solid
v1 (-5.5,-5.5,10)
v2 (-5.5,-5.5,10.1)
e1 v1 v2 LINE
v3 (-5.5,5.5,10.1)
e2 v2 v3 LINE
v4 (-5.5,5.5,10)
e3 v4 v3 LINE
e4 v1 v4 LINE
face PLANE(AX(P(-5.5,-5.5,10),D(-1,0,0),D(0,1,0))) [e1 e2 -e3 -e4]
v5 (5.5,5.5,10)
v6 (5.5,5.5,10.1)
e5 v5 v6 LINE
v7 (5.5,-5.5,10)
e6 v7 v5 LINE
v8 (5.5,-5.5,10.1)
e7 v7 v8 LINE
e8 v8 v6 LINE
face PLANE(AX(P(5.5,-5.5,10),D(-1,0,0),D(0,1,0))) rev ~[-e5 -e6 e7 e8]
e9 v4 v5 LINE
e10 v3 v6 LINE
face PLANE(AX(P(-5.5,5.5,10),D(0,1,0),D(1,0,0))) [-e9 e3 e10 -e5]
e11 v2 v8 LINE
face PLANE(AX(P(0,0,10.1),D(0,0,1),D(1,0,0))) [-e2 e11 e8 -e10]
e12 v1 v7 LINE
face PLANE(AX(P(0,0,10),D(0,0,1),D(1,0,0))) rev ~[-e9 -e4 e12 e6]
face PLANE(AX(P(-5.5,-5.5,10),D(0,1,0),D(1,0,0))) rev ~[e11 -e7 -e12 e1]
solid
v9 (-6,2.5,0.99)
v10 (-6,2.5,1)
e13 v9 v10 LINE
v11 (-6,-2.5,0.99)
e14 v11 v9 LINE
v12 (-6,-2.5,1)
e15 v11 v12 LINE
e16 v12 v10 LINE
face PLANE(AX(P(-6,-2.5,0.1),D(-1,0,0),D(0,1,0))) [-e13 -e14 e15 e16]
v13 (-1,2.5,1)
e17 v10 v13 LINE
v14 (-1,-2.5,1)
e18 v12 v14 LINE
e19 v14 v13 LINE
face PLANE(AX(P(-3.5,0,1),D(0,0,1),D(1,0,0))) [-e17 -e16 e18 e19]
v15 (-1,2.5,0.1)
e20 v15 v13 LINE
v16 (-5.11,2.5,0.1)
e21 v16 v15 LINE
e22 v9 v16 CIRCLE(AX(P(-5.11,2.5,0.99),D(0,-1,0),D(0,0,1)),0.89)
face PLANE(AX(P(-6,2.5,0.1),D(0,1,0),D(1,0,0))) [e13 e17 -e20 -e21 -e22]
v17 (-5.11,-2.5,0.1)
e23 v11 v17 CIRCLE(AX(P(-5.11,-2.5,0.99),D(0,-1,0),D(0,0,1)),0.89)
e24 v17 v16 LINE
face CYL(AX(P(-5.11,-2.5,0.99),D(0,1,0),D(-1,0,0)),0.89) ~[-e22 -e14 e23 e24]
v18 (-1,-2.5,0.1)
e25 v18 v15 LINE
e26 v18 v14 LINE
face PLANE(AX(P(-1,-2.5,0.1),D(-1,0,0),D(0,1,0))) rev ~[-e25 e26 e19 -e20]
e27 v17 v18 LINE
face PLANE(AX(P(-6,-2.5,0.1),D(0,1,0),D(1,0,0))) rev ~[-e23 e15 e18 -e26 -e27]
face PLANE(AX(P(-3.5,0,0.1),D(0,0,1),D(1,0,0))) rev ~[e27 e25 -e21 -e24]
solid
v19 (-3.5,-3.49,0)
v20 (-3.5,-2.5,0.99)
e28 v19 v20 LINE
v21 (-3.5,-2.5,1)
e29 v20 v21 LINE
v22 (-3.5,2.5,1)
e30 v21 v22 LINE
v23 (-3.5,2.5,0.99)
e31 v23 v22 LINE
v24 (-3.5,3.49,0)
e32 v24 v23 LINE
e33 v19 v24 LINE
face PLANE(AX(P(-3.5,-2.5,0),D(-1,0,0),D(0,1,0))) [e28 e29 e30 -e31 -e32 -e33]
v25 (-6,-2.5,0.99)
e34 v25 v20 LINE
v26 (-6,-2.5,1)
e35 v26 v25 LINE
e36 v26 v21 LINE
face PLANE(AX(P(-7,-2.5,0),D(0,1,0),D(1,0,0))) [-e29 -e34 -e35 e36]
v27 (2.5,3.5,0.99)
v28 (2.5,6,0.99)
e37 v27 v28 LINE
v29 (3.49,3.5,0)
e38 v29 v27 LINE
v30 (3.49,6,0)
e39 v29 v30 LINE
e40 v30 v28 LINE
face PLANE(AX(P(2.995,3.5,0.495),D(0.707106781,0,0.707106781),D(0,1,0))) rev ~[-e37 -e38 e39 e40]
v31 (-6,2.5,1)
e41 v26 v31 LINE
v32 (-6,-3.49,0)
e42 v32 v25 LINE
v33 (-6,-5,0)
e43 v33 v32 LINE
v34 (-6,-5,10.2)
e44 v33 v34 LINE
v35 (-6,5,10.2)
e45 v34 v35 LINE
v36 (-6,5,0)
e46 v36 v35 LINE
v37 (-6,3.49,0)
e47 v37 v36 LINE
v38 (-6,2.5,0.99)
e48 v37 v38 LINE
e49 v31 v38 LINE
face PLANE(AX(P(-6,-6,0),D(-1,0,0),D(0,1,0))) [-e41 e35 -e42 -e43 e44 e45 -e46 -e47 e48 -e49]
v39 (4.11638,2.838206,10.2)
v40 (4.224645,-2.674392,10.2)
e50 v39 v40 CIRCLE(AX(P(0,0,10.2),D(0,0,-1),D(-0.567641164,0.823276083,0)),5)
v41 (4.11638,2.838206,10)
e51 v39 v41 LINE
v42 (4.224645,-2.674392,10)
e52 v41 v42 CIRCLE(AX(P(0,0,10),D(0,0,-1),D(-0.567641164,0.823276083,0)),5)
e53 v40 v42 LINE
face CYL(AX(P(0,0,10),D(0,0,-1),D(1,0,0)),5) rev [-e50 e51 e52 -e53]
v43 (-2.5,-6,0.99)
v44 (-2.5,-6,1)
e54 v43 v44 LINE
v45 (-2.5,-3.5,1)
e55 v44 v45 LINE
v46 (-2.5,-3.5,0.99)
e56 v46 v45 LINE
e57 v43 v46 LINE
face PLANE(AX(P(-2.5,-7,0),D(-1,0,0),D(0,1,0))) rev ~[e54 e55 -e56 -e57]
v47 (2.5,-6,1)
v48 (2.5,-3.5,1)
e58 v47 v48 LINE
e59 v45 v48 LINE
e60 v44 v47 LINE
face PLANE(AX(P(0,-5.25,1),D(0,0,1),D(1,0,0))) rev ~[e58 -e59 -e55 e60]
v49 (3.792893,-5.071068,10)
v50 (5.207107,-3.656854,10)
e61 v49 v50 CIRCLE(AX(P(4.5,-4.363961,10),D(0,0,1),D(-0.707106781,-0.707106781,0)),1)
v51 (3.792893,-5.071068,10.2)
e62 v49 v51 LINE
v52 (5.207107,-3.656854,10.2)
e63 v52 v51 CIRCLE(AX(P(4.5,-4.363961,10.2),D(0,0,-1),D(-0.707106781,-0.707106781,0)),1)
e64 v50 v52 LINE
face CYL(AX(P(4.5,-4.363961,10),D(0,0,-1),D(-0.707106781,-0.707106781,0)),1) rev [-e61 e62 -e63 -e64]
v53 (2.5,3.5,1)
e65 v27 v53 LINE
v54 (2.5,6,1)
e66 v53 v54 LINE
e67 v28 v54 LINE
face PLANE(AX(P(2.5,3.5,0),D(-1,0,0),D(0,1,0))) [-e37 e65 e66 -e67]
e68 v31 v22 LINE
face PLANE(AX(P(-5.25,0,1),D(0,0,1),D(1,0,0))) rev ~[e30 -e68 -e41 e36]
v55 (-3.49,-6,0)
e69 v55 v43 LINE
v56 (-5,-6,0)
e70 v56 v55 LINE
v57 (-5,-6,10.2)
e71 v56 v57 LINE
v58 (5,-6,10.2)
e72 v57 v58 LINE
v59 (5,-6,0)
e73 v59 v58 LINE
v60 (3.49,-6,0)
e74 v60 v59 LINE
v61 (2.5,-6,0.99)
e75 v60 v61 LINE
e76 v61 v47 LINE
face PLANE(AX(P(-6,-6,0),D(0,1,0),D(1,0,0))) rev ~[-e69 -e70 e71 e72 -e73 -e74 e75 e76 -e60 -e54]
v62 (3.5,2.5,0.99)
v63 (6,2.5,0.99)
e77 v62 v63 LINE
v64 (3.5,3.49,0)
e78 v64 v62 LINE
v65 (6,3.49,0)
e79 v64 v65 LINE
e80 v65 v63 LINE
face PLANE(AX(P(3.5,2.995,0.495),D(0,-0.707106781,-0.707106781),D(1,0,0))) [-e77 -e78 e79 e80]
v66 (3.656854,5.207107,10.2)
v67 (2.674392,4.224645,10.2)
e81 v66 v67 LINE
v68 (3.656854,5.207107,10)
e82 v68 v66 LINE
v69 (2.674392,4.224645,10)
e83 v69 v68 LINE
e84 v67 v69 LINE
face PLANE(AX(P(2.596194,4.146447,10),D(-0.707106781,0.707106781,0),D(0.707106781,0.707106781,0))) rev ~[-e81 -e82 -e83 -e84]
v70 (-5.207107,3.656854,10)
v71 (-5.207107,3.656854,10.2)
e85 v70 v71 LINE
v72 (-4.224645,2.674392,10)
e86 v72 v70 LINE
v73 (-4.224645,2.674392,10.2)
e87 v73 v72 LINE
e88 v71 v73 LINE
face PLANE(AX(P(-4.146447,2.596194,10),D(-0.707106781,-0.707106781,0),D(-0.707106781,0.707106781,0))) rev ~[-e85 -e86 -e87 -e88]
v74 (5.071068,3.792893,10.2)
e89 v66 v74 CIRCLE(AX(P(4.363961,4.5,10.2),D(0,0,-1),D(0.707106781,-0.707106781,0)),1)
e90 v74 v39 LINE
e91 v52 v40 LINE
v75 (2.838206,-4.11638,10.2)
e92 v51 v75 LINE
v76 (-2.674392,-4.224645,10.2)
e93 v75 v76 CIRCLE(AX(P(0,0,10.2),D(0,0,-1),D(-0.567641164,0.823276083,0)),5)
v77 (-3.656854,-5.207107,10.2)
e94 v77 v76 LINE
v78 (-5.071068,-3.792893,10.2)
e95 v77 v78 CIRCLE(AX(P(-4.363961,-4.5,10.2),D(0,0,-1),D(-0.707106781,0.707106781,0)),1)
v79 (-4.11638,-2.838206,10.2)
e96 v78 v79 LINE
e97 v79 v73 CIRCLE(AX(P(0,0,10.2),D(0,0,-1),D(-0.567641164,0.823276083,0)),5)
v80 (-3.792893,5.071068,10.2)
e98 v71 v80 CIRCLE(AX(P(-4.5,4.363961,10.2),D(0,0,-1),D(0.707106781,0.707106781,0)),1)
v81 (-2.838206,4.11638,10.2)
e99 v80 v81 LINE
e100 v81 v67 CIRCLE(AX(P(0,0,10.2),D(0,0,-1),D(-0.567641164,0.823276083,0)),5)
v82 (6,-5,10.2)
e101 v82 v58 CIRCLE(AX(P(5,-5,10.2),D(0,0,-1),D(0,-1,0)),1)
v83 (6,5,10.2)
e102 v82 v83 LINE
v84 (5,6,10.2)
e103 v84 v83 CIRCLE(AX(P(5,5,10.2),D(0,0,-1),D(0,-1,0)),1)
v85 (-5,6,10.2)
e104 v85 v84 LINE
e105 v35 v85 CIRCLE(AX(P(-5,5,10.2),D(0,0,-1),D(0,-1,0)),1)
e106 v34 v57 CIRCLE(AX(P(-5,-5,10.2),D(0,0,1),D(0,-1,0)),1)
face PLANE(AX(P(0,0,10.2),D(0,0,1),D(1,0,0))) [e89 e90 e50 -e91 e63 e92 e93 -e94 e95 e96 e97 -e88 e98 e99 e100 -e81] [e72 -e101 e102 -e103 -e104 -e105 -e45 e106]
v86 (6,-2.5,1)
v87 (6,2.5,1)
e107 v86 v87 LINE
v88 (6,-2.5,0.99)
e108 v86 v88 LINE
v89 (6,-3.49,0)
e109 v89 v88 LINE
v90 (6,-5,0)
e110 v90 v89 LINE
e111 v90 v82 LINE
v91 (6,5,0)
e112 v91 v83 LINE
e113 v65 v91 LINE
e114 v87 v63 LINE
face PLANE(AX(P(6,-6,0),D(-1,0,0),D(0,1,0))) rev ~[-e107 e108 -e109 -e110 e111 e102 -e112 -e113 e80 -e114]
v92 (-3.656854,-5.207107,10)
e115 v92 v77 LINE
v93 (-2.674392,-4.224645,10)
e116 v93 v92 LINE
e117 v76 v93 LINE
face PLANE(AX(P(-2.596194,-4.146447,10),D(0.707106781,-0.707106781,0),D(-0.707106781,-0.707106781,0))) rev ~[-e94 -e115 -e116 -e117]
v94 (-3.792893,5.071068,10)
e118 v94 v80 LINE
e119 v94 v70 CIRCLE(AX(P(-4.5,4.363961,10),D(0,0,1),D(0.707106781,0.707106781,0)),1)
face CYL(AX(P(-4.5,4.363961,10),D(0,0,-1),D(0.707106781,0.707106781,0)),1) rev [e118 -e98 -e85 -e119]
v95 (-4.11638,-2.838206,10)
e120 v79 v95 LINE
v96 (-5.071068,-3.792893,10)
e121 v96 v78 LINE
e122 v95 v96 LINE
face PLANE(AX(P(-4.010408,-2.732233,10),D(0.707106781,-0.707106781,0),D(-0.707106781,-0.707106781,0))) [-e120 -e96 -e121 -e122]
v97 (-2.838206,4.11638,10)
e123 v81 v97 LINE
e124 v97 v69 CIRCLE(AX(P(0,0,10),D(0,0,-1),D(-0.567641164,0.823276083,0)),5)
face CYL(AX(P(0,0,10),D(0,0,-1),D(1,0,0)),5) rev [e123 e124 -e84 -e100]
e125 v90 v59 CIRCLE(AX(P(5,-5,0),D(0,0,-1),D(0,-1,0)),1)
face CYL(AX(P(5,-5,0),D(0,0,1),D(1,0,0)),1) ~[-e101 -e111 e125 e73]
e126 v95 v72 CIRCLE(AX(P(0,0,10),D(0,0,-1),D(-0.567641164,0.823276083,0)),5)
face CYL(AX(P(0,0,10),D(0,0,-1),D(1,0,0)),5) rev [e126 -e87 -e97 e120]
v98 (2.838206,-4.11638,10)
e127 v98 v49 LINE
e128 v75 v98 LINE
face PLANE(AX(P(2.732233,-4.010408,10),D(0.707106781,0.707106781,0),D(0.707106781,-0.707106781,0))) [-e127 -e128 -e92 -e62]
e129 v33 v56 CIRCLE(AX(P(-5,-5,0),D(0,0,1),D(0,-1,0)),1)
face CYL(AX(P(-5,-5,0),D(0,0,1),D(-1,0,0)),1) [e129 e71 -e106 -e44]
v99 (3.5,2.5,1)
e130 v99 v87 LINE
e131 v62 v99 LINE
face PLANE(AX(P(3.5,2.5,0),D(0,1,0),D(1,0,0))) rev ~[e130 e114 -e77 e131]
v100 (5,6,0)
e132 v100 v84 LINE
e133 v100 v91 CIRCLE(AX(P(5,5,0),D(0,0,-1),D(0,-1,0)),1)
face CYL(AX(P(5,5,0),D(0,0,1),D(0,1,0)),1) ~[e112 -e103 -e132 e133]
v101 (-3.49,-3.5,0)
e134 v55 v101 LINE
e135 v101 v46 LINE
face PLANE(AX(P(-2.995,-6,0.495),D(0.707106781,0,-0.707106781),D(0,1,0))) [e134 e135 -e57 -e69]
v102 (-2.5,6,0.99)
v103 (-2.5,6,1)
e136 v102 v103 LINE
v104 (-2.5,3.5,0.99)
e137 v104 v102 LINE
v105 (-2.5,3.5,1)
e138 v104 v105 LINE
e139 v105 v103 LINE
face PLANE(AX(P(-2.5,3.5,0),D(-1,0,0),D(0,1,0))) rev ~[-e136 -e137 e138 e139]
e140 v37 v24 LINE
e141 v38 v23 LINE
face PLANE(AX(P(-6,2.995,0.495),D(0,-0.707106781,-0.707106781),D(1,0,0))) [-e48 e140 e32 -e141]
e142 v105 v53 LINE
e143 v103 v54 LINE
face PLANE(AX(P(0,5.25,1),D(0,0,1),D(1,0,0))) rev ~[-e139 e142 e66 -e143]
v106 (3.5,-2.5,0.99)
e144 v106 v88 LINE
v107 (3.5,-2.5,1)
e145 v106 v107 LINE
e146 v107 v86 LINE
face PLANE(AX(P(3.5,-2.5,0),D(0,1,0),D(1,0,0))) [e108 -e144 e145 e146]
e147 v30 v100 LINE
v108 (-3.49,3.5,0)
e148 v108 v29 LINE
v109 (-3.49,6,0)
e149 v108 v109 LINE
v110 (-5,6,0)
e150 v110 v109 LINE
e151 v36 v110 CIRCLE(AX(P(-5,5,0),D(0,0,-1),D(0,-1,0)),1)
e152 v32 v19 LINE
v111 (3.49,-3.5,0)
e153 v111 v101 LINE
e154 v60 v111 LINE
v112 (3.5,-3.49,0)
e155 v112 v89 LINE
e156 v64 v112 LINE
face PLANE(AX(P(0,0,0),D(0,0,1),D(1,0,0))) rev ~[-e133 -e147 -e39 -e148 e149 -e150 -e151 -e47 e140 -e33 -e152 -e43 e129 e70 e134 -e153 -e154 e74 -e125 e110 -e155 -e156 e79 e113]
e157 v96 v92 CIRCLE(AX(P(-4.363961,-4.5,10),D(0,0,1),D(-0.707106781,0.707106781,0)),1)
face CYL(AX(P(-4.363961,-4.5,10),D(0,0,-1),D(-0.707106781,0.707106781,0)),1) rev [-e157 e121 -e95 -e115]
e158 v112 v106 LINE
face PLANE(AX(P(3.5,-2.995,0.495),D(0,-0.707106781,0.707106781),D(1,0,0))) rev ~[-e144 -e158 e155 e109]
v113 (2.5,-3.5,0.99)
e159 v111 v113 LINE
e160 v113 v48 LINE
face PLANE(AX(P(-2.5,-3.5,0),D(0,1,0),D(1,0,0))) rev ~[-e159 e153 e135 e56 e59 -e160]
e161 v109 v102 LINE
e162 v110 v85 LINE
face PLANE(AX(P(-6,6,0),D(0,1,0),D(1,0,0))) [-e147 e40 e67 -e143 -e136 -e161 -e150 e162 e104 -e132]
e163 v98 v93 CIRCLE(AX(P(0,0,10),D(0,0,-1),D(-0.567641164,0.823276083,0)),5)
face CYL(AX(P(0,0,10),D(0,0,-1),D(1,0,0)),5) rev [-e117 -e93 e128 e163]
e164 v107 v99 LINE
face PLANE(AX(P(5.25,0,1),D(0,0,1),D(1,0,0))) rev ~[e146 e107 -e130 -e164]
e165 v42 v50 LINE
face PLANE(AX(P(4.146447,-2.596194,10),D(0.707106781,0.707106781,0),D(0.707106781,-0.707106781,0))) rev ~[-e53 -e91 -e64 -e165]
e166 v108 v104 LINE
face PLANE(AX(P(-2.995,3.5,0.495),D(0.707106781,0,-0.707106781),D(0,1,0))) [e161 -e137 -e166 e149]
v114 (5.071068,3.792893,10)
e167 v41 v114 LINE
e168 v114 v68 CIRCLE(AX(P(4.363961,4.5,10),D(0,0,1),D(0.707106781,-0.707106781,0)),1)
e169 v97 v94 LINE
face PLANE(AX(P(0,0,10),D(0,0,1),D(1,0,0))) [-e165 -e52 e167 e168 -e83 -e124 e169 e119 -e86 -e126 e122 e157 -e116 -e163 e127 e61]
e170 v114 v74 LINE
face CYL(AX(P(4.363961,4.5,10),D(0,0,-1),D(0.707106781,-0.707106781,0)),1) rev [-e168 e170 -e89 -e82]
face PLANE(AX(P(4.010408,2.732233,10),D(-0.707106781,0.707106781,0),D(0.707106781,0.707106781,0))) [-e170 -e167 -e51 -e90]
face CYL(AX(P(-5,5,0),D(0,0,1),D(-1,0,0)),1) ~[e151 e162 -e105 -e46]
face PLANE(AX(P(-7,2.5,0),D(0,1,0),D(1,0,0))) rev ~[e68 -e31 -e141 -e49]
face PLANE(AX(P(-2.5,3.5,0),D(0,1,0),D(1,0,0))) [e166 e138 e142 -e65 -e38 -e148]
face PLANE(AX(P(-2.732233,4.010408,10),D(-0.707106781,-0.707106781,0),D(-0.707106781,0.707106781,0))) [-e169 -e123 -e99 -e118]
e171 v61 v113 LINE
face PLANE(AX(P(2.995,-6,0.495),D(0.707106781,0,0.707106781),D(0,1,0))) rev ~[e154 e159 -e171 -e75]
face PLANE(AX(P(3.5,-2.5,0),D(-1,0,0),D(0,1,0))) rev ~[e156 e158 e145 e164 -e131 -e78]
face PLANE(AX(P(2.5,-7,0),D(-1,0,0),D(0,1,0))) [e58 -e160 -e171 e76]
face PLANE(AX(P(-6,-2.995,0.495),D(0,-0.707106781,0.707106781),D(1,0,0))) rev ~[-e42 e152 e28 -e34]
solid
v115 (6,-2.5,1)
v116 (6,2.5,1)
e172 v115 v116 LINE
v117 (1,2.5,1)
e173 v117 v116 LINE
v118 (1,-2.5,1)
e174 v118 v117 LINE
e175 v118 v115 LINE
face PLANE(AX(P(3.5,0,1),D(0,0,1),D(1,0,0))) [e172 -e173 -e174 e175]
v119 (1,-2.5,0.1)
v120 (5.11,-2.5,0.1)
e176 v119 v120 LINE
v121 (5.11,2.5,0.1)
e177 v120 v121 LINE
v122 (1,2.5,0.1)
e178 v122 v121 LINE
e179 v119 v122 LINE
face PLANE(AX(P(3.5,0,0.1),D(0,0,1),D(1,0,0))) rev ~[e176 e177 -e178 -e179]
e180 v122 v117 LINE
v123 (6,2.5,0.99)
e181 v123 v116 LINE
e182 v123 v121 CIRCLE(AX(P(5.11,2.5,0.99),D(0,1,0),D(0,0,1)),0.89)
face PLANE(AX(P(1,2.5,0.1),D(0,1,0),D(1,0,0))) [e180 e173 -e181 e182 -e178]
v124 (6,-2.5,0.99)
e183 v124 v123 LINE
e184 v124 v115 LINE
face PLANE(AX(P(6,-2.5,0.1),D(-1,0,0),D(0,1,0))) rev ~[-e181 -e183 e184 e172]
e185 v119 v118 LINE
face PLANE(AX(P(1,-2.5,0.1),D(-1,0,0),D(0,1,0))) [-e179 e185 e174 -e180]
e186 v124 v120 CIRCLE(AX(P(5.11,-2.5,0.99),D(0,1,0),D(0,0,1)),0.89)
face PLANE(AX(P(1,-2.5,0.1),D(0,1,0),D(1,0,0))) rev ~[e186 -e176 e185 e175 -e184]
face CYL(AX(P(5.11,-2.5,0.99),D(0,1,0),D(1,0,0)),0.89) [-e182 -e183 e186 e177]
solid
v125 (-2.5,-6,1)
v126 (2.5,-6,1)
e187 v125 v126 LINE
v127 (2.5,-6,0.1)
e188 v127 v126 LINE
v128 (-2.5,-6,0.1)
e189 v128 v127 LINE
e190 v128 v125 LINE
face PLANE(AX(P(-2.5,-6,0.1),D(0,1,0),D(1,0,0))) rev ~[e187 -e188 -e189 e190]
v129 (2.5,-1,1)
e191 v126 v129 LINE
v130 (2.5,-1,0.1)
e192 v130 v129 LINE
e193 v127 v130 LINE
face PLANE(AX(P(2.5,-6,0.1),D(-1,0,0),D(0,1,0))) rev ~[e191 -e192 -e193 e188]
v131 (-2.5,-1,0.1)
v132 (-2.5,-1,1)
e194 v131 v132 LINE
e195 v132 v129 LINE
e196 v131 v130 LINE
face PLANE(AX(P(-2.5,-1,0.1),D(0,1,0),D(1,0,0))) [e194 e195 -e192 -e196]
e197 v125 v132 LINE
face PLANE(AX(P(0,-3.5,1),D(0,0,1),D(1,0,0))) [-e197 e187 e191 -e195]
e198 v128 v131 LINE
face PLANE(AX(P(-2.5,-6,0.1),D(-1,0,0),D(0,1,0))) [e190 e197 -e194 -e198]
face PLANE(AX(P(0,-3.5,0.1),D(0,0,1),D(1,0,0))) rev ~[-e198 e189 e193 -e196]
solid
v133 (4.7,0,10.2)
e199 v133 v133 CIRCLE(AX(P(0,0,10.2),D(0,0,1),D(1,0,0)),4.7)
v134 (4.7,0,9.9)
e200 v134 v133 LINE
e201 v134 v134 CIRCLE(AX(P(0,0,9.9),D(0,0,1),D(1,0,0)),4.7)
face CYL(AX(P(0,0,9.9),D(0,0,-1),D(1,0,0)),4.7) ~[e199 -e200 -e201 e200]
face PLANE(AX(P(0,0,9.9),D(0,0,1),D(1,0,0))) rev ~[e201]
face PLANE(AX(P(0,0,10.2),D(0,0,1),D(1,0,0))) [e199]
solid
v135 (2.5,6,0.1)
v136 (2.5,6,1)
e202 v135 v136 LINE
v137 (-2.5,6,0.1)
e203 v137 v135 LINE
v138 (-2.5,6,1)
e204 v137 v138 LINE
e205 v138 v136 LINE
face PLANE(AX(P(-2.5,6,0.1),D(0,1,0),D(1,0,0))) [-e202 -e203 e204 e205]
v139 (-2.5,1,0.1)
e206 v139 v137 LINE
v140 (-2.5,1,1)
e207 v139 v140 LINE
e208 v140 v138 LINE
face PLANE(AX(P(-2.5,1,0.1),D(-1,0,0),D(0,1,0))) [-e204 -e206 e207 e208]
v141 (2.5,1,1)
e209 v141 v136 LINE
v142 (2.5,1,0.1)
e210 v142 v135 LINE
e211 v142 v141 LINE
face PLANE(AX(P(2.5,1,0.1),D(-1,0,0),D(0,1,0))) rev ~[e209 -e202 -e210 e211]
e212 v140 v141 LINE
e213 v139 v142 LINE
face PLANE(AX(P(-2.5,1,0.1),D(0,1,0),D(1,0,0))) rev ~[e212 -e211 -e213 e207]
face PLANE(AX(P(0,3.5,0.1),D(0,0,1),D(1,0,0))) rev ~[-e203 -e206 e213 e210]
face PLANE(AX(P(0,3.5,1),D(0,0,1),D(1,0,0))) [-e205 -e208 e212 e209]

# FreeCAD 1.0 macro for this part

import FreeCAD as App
import Part
import Sketcher


def edges_at(feature, points):
    """Names of the edges that pass closest to the given points."""
    edges = feature.Shape.Edges
    near = lambda p: min(range(len(edges)), key=lambda i: edges[i].distToShape(Part.Vertex(*p))[0])
    return sorted({f"Edge{near(p) + 1}" for p in points})


def add_polygon(sketch, points):
    """Adds a closed chain of lines whose ends are joined by coincident constraints."""
    first, n = sketch.GeometryCount, len(points)
    for a, b in zip(points, points[1:] + points[:1]):
        sketch.addGeometry(Part.LineSegment(App.Vector(*a, 0), App.Vector(*b, 0)), False)
    for i in range(n):
        sketch.addConstraint(Sketcher.Constraint("Coincident", first + i, 2, first + (i + 1) % n, 1))

doc = App.newDocument("Part")
body = doc.addObject("PartDesign::Body", "Body")

# Sketch on XY plane
sketch1 = body.newObject("Sketcher::SketchObject", "Sketch")
sketch1.AttachmentSupport = (doc.getObject("XY_Plane"), [""])
sketch1.MapMode = "FlatFace"
sketch1.AttachmentOffset = App.Placement(App.Vector(0, 0, 0.1), App.Rotation())
add_polygon(sketch1, [(-2.5, 6), (-2.5, 1), (2.5, 1), (2.5, 6)])  # lines 0-3
sketch1.addConstraint([
    Sketcher.Constraint("Vertical", 0),
    Sketcher.Constraint("Horizontal", 1),
    Sketcher.Constraint("Vertical", 2),
    Sketcher.Constraint("Horizontal", 3),
    Sketcher.Constraint("Equal", 3, 0),
    Sketcher.Constraint("DistanceX", 1, 1, 1, 2, 5.0),
    Sketcher.Constraint("DistanceY", -1, 1, 0, 2, 1.0),
    Sketcher.Constraint("DistanceX", 0, 2, -1, 1, 2.5),
])
pad1 = body.newObject("PartDesign::Pad", "Pad")
pad1.Profile = sketch1
pad1.Length = 0.9
body2 = doc.addObject("PartDesign::Body", "Body001")

# Sketch on XY plane
sketch2 = body2.newObject("Sketcher::SketchObject", "Sketch001")
sketch2.AttachmentSupport = (doc.getObject("XY_Plane001"), [""])
sketch2.MapMode = "FlatFace"
sketch2.AttachmentOffset = App.Placement(App.Vector(0, 0, 0.1), App.Rotation())
add_polygon(sketch2, [(-2.5, -1), (-2.5, -6), (2.5, -6), (2.5, -1)])  # lines 0-3
sketch2.addConstraint([
    Sketcher.Constraint("Vertical", 0),
    Sketcher.Constraint("Horizontal", 1),
    Sketcher.Constraint("Vertical", 2),
    Sketcher.Constraint("Horizontal", 3),
    Sketcher.Constraint("Equal", 3, 0),
    Sketcher.Constraint("DistanceX", 1, 1, 1, 2, 5.0),
    Sketcher.Constraint("DistanceY", 0, 2, -1, 1, 6.0),
    Sketcher.Constraint("DistanceX", 0, 2, -1, 1, 2.5),
])
pad2 = body2.newObject("PartDesign::Pad", "Pad001")
pad2.Profile = sketch2
pad2.Length = 0.9
body3 = doc.addObject("PartDesign::Body", "Body002")

# Sketch on XY plane
sketch3 = body3.newObject("Sketcher::SketchObject", "Sketch002")
sketch3.AttachmentSupport = (doc.getObject("XY_Plane002"), [""])
sketch3.MapMode = "FlatFace"
sketch3.AttachmentOffset = App.Placement(App.Vector(0, 0, 0.1), App.Rotation())
add_polygon(sketch3, [(-6, 2.5), (-6, -2.5), (-1, -2.5), (-1, 2.5)])  # lines 0-3
sketch3.addConstraint([
    Sketcher.Constraint("Vertical", 0),
    Sketcher.Constraint("Horizontal", 1),
    Sketcher.Constraint("Vertical", 2),
    Sketcher.Constraint("Horizontal", 3),
    Sketcher.Constraint("Equal", 3, 0),
    Sketcher.Constraint("DistanceX", 1, 1, 1, 2, 5.0),
    Sketcher.Constraint("DistanceX", 0, 2, -1, 1, 6.0),
    Sketcher.Constraint("DistanceY", 0, 2, -1, 1, 2.5),
])
pad3 = body3.newObject("PartDesign::Pad", "Pad002")
pad3.Profile = sketch3
pad3.Length = 0.9
doc.recompute()

fillet = body3.newObject("PartDesign::Fillet", "Fillet")
fillet.Base = (pad3, edges_at(pad3, [(-6, 0, 0.1)]))
fillet.Radius = 0.89
body4 = doc.addObject("PartDesign::Body", "Body003")

# Sketch on XY plane
sketch4 = body4.newObject("Sketcher::SketchObject", "Sketch003")
sketch4.AttachmentSupport = (doc.getObject("XY_Plane003"), [""])
sketch4.MapMode = "FlatFace"
sketch4.AttachmentOffset = App.Placement(App.Vector(0, 0, 0.1), App.Rotation())
add_polygon(sketch4, [(1, 2.5), (1, -2.5), (6, -2.5), (6, 2.5)])  # lines 0-3
sketch4.addConstraint([
    Sketcher.Constraint("Vertical", 0),
    Sketcher.Constraint("Horizontal", 1),
    Sketcher.Constraint("Vertical", 2),
    Sketcher.Constraint("Horizontal", 3),
    Sketcher.Constraint("Equal", 3, 0),
    Sketcher.Constraint("DistanceX", 1, 1, 1, 2, 5.0),
    Sketcher.Constraint("DistanceX", -1, 1, 0, 2, 1.0),
    Sketcher.Constraint("DistanceY", 0, 2, -1, 1, 2.5),
])
pad4 = body4.newObject("PartDesign::Pad", "Pad003")
pad4.Profile = sketch4
pad4.Length = 0.9
doc.recompute()

fillet2 = body4.newObject("PartDesign::Fillet", "Fillet001")
fillet2.Base = (pad4, edges_at(pad4, [(6, 0, 0.1)]))
fillet2.Radius = 0.89
body5 = doc.addObject("PartDesign::Body", "Body004")

# Sketch on XY plane
sketch5 = body5.newObject("Sketcher::SketchObject", "Sketch004")
sketch5.AttachmentSupport = (doc.getObject("XY_Plane004"), [""])
sketch5.MapMode = "FlatFace"
sketch5.AttachmentOffset = App.Placement(App.Vector(0, 0, 9.9), App.Rotation())
sketch5.addGeometry(Part.Circle(App.Vector(0, 0, 0), App.Vector(0, 0, 1), 4.7), False)
sketch5.addConstraint([
    Sketcher.Constraint("Coincident", 0, 3, -1, 1),
    Sketcher.Constraint("Diameter", 0, 9.4),
])
pad5 = body5.newObject("PartDesign::Pad", "Pad004")
pad5.Profile = sketch5
pad5.Length = 0.3
body6 = doc.addObject("PartDesign::Body", "Body005")

# Sketch on XY plane
sketch6 = body6.newObject("Sketcher::SketchObject", "Sketch005")
sketch6.AttachmentSupport = (doc.getObject("XY_Plane005"), [""])
sketch6.MapMode = "FlatFace"
sketch6.AttachmentOffset = App.Placement(App.Vector(0, 0, 10), App.Rotation())
add_polygon(sketch6, [(-5.5, 5.5), (-5.5, -5.5), (5.5, -5.5), (5.5, 5.5)])  # lines 0-3
sketch6.addConstraint([
    Sketcher.Constraint("Vertical", 0),
    Sketcher.Constraint("Horizontal", 1),
    Sketcher.Constraint("Vertical", 2),
    Sketcher.Constraint("Horizontal", 3),
    Sketcher.Constraint("Symmetric", 0, 2, 2, 2, -1, 1),
    Sketcher.Constraint("Equal", 3, 0),
    Sketcher.Constraint("DistanceX", 1, 1, 1, 2, 11.0),
])
pad6 = body6.newObject("PartDesign::Pad", "Pad005")
pad6.Profile = sketch6
pad6.Length = 0.1
body7 = doc.addObject("PartDesign::Body", "Body006")

# Sketch on XY plane
sketch7 = body7.newObject("Sketcher::SketchObject", "Sketch006")
sketch7.AttachmentSupport = (doc.getObject("XY_Plane006"), [""])
sketch7.MapMode = "FlatFace"
sketch7.AttachmentOffset = App.Placement(App.Vector(0, 0, 10), App.Rotation())
add_polygon(sketch7, [(3.5, 4.5), (3.5, 3), (5.5, 3), (5.5, 4.5)])  # lines 0-3
sketch7.addConstraint([
    Sketcher.Constraint("Vertical", 0),
    Sketcher.Constraint("Horizontal", 1),
    Sketcher.Constraint("Vertical", 2),
    Sketcher.Constraint("Horizontal", 3),
    Sketcher.Constraint("DistanceX", 1, 1, 1, 2, 2.0),
    Sketcher.Constraint("DistanceY", 0, 2, 0, 1, 1.5),
    Sketcher.Constraint("DistanceY", -1, 1, 0, 2, 3.0),
    Sketcher.Constraint("DistanceX", -1, 1, 0, 2, 3.5),
])
pad7 = body7.newObject("PartDesign::Pad", "Pad006")
pad7.Profile = sketch7
pad7.Length = 0.3
body8 = doc.addObject("PartDesign::Body", "Body007")

# Sketch on XY plane
sketch8 = body8.newObject("Sketcher::SketchObject", "Sketch007")
sketch8.AttachmentSupport = (doc.getObject("XY_Plane007"), [""])
sketch8.MapMode = "FlatFace"
sketch8.AttachmentOffset = App.Placement(App.Vector(0, 0, 10), App.Rotation())
sketch8.addGeometry(Part.Circle(App.Vector(4.5, 4.5, 0), App.Vector(0, 0, 1), 1), False)
sketch8.addConstraint([
    Sketcher.Constraint("Diameter", 0, 2.0),
    Sketcher.Constraint("DistanceX", -1, 1, 0, 3, 4.5),
    Sketcher.Constraint("DistanceY", -1, 1, 0, 3, 4.5),
])
pad8 = body8.newObject("PartDesign::Pad", "Pad007")
pad8.Profile = sketch8
pad8.Length = 0.3
doc.recompute()

boolean = body8.newObject("PartDesign::Boolean", "Boolean")
boolean.Type = "Fuse"
boolean.addObjects([body7])
body9 = doc.addObject("PartDesign::Body", "Body008")
doc.recompute()

body8.Placement = App.Placement(App.Vector(4.5, 2, 0), App.Rotation(App.Vector(0, 0, 1), 225))
boolean2 = body9.newObject("PartDesign::Boolean", "Boolean001")
boolean2.Type = "Fuse"
boolean2.addObjects([body8])
body10 = doc.addObject("PartDesign::Body", "Body009")

# Sketch on XY plane
sketch9 = body10.newObject("Sketcher::SketchObject", "Sketch008")
sketch9.AttachmentSupport = (doc.getObject("XY_Plane009"), [""])
sketch9.MapMode = "FlatFace"
sketch9.AttachmentOffset = App.Placement(App.Vector(0, 0, 10), App.Rotation())
add_polygon(sketch9, [(3.5, 4.5), (3.5, 3), (5.5, 3), (5.5, 4.5)])  # lines 0-3
sketch9.addConstraint([
    Sketcher.Constraint("Vertical", 0),
    Sketcher.Constraint("Horizontal", 1),
    Sketcher.Constraint("Vertical", 2),
    Sketcher.Constraint("Horizontal", 3),
    Sketcher.Constraint("DistanceX", 1, 1, 1, 2, 2.0),
    Sketcher.Constraint("DistanceY", 0, 2, 0, 1, 1.5),
    Sketcher.Constraint("DistanceY", -1, 1, 0, 2, 3.0),
    Sketcher.Constraint("DistanceX", -1, 1, 0, 2, 3.5),
])
pad9 = body10.newObject("PartDesign::Pad", "Pad008")
pad9.Profile = sketch9
pad9.Length = 0.3
body11 = doc.addObject("PartDesign::Body", "Body010")

# Sketch on XY plane
sketch10 = body11.newObject("Sketcher::SketchObject", "Sketch009")
sketch10.AttachmentSupport = (doc.getObject("XY_Plane010"), [""])
sketch10.MapMode = "FlatFace"
sketch10.AttachmentOffset = App.Placement(App.Vector(0, 0, 10), App.Rotation())
sketch10.addGeometry(Part.Circle(App.Vector(4.5, 4.5, 0), App.Vector(0, 0, 1), 1), False)
sketch10.addConstraint([
    Sketcher.Constraint("Diameter", 0, 2.0),
    Sketcher.Constraint("DistanceX", -1, 1, 0, 3, 4.5),
    Sketcher.Constraint("DistanceY", -1, 1, 0, 3, 4.5),
])
pad10 = body11.newObject("PartDesign::Pad", "Pad009")
pad10.Profile = sketch10
pad10.Length = 0.3
doc.recompute()

boolean3 = body11.newObject("PartDesign::Boolean", "Boolean002")
boolean3.Type = "Fuse"
boolean3.addObjects([body10])
body12 = doc.addObject("PartDesign::Body", "Body011")
doc.recompute()

body11.Placement = App.Placement(App.Vector(-2, 4.5, 0), App.Rotation(App.Vector(0, 0, 1), 315))
boolean4 = body12.newObject("PartDesign::Boolean", "Boolean003")
boolean4.Type = "Fuse"
boolean4.addObjects([body11])
body13 = doc.addObject("PartDesign::Body", "Body012")

# Sketch on XY plane
sketch11 = body13.newObject("Sketcher::SketchObject", "Sketch010")
sketch11.AttachmentSupport = (doc.getObject("XY_Plane012"), [""])
sketch11.MapMode = "FlatFace"
sketch11.AttachmentOffset = App.Placement(App.Vector(0, 0, 10), App.Rotation())
add_polygon(sketch11, [(3.5, 4.5), (3.5, 3), (5.5, 3), (5.5, 4.5)])  # lines 0-3
sketch11.addConstraint([
    Sketcher.Constraint("Vertical", 0),
    Sketcher.Constraint("Horizontal", 1),
    Sketcher.Constraint("Vertical", 2),
    Sketcher.Constraint("Horizontal", 3),
    Sketcher.Constraint("DistanceX", 1, 1, 1, 2, 2.0),
    Sketcher.Constraint("DistanceY", 0, 2, 0, 1, 1.5),
    Sketcher.Constraint("DistanceY", -1, 1, 0, 2, 3.0),
    Sketcher.Constraint("DistanceX", -1, 1, 0, 2, 3.5),
])
pad11 = body13.newObject("PartDesign::Pad", "Pad010")
pad11.Profile = sketch11
pad11.Length = 0.3
body14 = doc.addObject("PartDesign::Body", "Body013")

# Sketch on XY plane
sketch12 = body14.newObject("Sketcher::SketchObject", "Sketch011")
sketch12.AttachmentSupport = (doc.getObject("XY_Plane013"), [""])
sketch12.MapMode = "FlatFace"
sketch12.AttachmentOffset = App.Placement(App.Vector(0, 0, 10), App.Rotation())
sketch12.addGeometry(Part.Circle(App.Vector(4.5, 4.5, 0), App.Vector(0, 0, 1), 1), False)
sketch12.addConstraint([
    Sketcher.Constraint("Diameter", 0, 2.0),
    Sketcher.Constraint("DistanceX", -1, 1, 0, 3, 4.5),
    Sketcher.Constraint("DistanceY", -1, 1, 0, 3, 4.5),
])
pad12 = body14.newObject("PartDesign::Pad", "Pad011")
pad12.Profile = sketch12
pad12.Length = 0.3
doc.recompute()

boolean5 = body14.newObject("PartDesign::Boolean", "Boolean004")
boolean5.Type = "Fuse"
boolean5.addObjects([body13])
body15 = doc.addObject("PartDesign::Body", "Body014")
doc.recompute()

body14.Placement = App.Placement(App.Vector(2, -4.5, 0), App.Rotation(App.Vector(0, 0, 1), 135))
boolean6 = body15.newObject("PartDesign::Boolean", "Boolean005")
boolean6.Type = "Fuse"
boolean6.addObjects([body14])
body16 = doc.addObject("PartDesign::Body", "Body015")

# Sketch on XY plane
sketch13 = body16.newObject("Sketcher::SketchObject", "Sketch012")
sketch13.AttachmentSupport = (doc.getObject("XY_Plane015"), [""])
sketch13.MapMode = "FlatFace"
sketch13.AttachmentOffset = App.Placement(App.Vector(0, 0, 10), App.Rotation())
add_polygon(sketch13, [(3.5, 4.5), (3.5, 3), (5.5, 3), (5.5, 4.5)])  # lines 0-3
sketch13.addConstraint([
    Sketcher.Constraint("Vertical", 0),
    Sketcher.Constraint("Horizontal", 1),
    Sketcher.Constraint("Vertical", 2),
    Sketcher.Constraint("Horizontal", 3),
    Sketcher.Constraint("DistanceX", 1, 1, 1, 2, 2.0),
    Sketcher.Constraint("DistanceY", 0, 2, 0, 1, 1.5),
    Sketcher.Constraint("DistanceY", -1, 1, 0, 2, 3.0),
    Sketcher.Constraint("DistanceX", -1, 1, 0, 2, 3.5),
])
pad13 = body16.newObject("PartDesign::Pad", "Pad012")
pad13.Profile = sketch13
pad13.Length = 0.3
body17 = doc.addObject("PartDesign::Body", "Body016")

# Sketch on XY plane
sketch14 = body17.newObject("Sketcher::SketchObject", "Sketch013")
sketch14.AttachmentSupport = (doc.getObject("XY_Plane016"), [""])
sketch14.MapMode = "FlatFace"
sketch14.AttachmentOffset = App.Placement(App.Vector(0, 0, 10), App.Rotation())
sketch14.addGeometry(Part.Circle(App.Vector(4.5, 4.5, 0), App.Vector(0, 0, 1), 1), False)
sketch14.addConstraint([
    Sketcher.Constraint("Diameter", 0, 2.0),
    Sketcher.Constraint("DistanceX", -1, 1, 0, 3, 4.5),
    Sketcher.Constraint("DistanceY", -1, 1, 0, 3, 4.5),
])
pad14 = body17.newObject("PartDesign::Pad", "Pad013")
pad14.Profile = sketch14
pad14.Length = 0.3
doc.recompute()

boolean7 = body17.newObject("PartDesign::Boolean", "Boolean006")
boolean7.Type = "Fuse"
boolean7.addObjects([body16])
body18 = doc.addObject("PartDesign::Body", "Body017")
doc.recompute()

body17.Placement = App.Placement(App.Vector(-4.5, -2, 0), App.Rotation(App.Vector(0, 0, 1), 45))
boolean8 = body18.newObject("PartDesign::Boolean", "Boolean007")
boolean8.Type = "Fuse"
boolean8.addObjects([body17])
body19 = doc.addObject("PartDesign::Body", "Body018")

# Sketch on XY plane
sketch15 = body19.newObject("Sketcher::SketchObject", "Sketch014")
sketch15.AttachmentSupport = (doc.getObject("XY_Plane018"), [""])
sketch15.MapMode = "FlatFace"
sketch15.AttachmentOffset = App.Placement(App.Vector(0, 0, 10), App.Rotation())
sketch15.addGeometry(Part.Circle(App.Vector(0, 0, 0), App.Vector(0, 0, 1), 5), False)
sketch15.addConstraint([
    Sketcher.Constraint("Coincident", 0, 3, -1, 1),
    Sketcher.Constraint("Diameter", 0, 10.0),
])
pad15 = body19.newObject("PartDesign::Pad", "Pad014")
pad15.Profile = sketch15
pad15.Length = 0.3
body20 = doc.addObject("PartDesign::Body", "Body019")

# Sketch on XY plane
sketch16 = body20.newObject("Sketcher::SketchObject", "Sketch015")
sketch16.AttachmentSupport = (doc.getObject("XY_Plane019"), [""])
sketch16.MapMode = "FlatFace"
add_polygon(sketch16, [(-2.5, -3.5), (-2.5, -7), (2.5, -7), (2.5, -3.5)])  # lines 0-3
sketch16.addConstraint([
    Sketcher.Constraint("Vertical", 0),
    Sketcher.Constraint("Horizontal", 1),
    Sketcher.Constraint("Vertical", 2),
    Sketcher.Constraint("Horizontal", 3),
    Sketcher.Constraint("DistanceX", 1, 1, 1, 2, 5.0),
    Sketcher.Constraint("DistanceY", 0, 2, 0, 1, 3.5),
    Sketcher.Constraint("DistanceY", 0, 2, -1, 1, 7.0),
    Sketcher.Constraint("DistanceX", 0, 2, -1, 1, 2.5),
])
pad16 = body20.newObject("PartDesign::Pad", "Pad015")
pad16.Profile = sketch16
pad16.Length = 1
body21 = doc.addObject("PartDesign::Body", "Body020")

# Sketch on XY plane
sketch17 = body21.newObject("Sketcher::SketchObject", "Sketch016")
sketch17.AttachmentSupport = (doc.getObject("XY_Plane020"), [""])
sketch17.MapMode = "FlatFace"
add_polygon(sketch17, [(-2.5, 7), (-2.5, 3.5), (2.5, 3.5), (2.5, 7)])  # lines 0-3
sketch17.addConstraint([
    Sketcher.Constraint("Vertical", 0),
    Sketcher.Constraint("Horizontal", 1),
    Sketcher.Constraint("Vertical", 2),
    Sketcher.Constraint("Horizontal", 3),
    Sketcher.Constraint("DistanceX", 1, 1, 1, 2, 5.0),
    Sketcher.Constraint("DistanceY", 0, 2, 0, 1, 3.5),
    Sketcher.Constraint("DistanceY", -1, 1, 2, 2, 7.0),
    Sketcher.Constraint("DistanceX", 0, 2, -1, 1, 2.5),
])
pad17 = body21.newObject("PartDesign::Pad", "Pad016")
pad17.Profile = sketch17
pad17.Length = 1
body22 = doc.addObject("PartDesign::Body", "Body021")

# Sketch on XY plane
sketch18 = body22.newObject("Sketcher::SketchObject", "Sketch017")
sketch18.AttachmentSupport = (doc.getObject("XY_Plane021"), [""])
sketch18.MapMode = "FlatFace"
add_polygon(sketch18, [(-7, 2.5), (-7, -2.5), (-3.5, -2.5), (-3.5, 2.5)])  # lines 0-3
sketch18.addConstraint([
    Sketcher.Constraint("Vertical", 0),
    Sketcher.Constraint("Horizontal", 1),
    Sketcher.Constraint("Vertical", 2),
    Sketcher.Constraint("Horizontal", 3),
    Sketcher.Constraint("DistanceY", 0, 2, 0, 1, 5.0),
    Sketcher.Constraint("DistanceX", 1, 1, 1, 2, 3.5),
    Sketcher.Constraint("DistanceX", 0, 2, -1, 1, 7.0),
    Sketcher.Constraint("DistanceY", 0, 2, -1, 1, 2.5),
])
pad18 = body22.newObject("PartDesign::Pad", "Pad017")
pad18.Profile = sketch18
pad18.Length = 1
body23 = doc.addObject("PartDesign::Body", "Body022")

# Sketch on XY plane
sketch19 = body23.newObject("Sketcher::SketchObject", "Sketch018")
sketch19.AttachmentSupport = (doc.getObject("XY_Plane022"), [""])
sketch19.MapMode = "FlatFace"
add_polygon(sketch19, [(3.5, 2.5), (3.5, -2.5), (7, -2.5), (7, 2.5)])  # lines 0-3
sketch19.addConstraint([
    Sketcher.Constraint("Vertical", 0),
    Sketcher.Constraint("Horizontal", 1),
    Sketcher.Constraint("Vertical", 2),
    Sketcher.Constraint("Horizontal", 3),
    Sketcher.Constraint("DistanceY", 0, 2, 0, 1, 5.0),
    Sketcher.Constraint("DistanceX", 1, 1, 1, 2, 3.5),
    Sketcher.Constraint("DistanceX", -1, 1, 1, 2, 7.0),
    Sketcher.Constraint("DistanceY", 0, 2, -1, 1, 2.5),
])
pad19 = body23.newObject("PartDesign::Pad", "Pad018")
pad19.Profile = sketch19
pad19.Length = 1
body24 = doc.addObject("PartDesign::Body", "Body023")

# Sketch on XY plane
sketch20 = body24.newObject("Sketcher::SketchObject", "Sketch019")
sketch20.AttachmentSupport = (doc.getObject("XY_Plane023"), [""])
sketch20.MapMode = "FlatFace"
add_polygon(sketch20, [(-6, 6), (-6, -6), (6, -6), (6, 6)])  # lines 0-3
sketch20.addConstraint([
    Sketcher.Constraint("Vertical", 0),
    Sketcher.Constraint("Horizontal", 1),
    Sketcher.Constraint("Vertical", 2),
    Sketcher.Constraint("Horizontal", 3),
    Sketcher.Constraint("Symmetric", 0, 2, 2, 2, -1, 1),
    Sketcher.Constraint("Equal", 3, 0),
    Sketcher.Constraint("DistanceX", 1, 1, 1, 2, 12.0),
])
pad20 = body24.newObject("PartDesign::Pad", "Pad019")
pad20.Profile = sketch20
pad20.Length = 10.2
doc.recompute()

boolean9 = body24.newObject("PartDesign::Boolean", "Boolean008")
boolean9.Type = "Cut"
boolean9.addObjects([body23])
doc.recompute()

boolean10 = body24.newObject("PartDesign::Boolean", "Boolean009")
boolean10.Type = "Cut"
boolean10.addObjects([body22])
doc.recompute()

boolean11 = body24.newObject("PartDesign::Boolean", "Boolean010")
boolean11.Type = "Cut"
boolean11.addObjects([body21])
doc.recompute()

boolean12 = body24.newObject("PartDesign::Boolean", "Boolean011")
boolean12.Type = "Cut"
boolean12.addObjects([body20])
doc.recompute()

chamfer = body24.newObject("PartDesign::Chamfer", "Chamfer")
chamfer.Base = (boolean12, edges_at(boolean12, [
    (4.75, -2.5, 0),
    (4.75, 2.5, 0),
    (2.5, 4.75, 0),
    (-2.5, 4.75, 0),
    (-4.75, 2.5, 0),
    (-4.75, -2.5, 0),
    (-2.5, -4.75, 0),
    (2.5, -4.75, 0),
]))
chamfer.Size = 0.99
doc.recompute()

fillet3 = body24.newObject("PartDesign::Fillet", "Fillet002")
fillet3.Base = (chamfer, edges_at(chamfer, [
    (-6, 6, 5.1),
    (6, 6, 5.1),
    (-6, -6, 5.1),
    (6, -6, 5.1),
]))
fillet3.Radius = 1
doc.recompute()

boolean13 = body24.newObject("PartDesign::Boolean", "Boolean012")
boolean13.Type = "Cut"
boolean13.addObjects([body19])
doc.recompute()

boolean14 = body24.newObject("PartDesign::Boolean", "Boolean013")
boolean14.Type = "Cut"
boolean14.addObjects([body18])
doc.recompute()

boolean15 = body24.newObject("PartDesign::Boolean", "Boolean014")
boolean15.Type = "Cut"
boolean15.addObjects([body15])
doc.recompute()

boolean16 = body24.newObject("PartDesign::Boolean", "Boolean015")
boolean16.Type = "Cut"
boolean16.addObjects([body12])
doc.recompute()

boolean17 = body24.newObject("PartDesign::Boolean", "Boolean016")
boolean17.Type = "Cut"
boolean17.addObjects([body9])

doc.recompute()
